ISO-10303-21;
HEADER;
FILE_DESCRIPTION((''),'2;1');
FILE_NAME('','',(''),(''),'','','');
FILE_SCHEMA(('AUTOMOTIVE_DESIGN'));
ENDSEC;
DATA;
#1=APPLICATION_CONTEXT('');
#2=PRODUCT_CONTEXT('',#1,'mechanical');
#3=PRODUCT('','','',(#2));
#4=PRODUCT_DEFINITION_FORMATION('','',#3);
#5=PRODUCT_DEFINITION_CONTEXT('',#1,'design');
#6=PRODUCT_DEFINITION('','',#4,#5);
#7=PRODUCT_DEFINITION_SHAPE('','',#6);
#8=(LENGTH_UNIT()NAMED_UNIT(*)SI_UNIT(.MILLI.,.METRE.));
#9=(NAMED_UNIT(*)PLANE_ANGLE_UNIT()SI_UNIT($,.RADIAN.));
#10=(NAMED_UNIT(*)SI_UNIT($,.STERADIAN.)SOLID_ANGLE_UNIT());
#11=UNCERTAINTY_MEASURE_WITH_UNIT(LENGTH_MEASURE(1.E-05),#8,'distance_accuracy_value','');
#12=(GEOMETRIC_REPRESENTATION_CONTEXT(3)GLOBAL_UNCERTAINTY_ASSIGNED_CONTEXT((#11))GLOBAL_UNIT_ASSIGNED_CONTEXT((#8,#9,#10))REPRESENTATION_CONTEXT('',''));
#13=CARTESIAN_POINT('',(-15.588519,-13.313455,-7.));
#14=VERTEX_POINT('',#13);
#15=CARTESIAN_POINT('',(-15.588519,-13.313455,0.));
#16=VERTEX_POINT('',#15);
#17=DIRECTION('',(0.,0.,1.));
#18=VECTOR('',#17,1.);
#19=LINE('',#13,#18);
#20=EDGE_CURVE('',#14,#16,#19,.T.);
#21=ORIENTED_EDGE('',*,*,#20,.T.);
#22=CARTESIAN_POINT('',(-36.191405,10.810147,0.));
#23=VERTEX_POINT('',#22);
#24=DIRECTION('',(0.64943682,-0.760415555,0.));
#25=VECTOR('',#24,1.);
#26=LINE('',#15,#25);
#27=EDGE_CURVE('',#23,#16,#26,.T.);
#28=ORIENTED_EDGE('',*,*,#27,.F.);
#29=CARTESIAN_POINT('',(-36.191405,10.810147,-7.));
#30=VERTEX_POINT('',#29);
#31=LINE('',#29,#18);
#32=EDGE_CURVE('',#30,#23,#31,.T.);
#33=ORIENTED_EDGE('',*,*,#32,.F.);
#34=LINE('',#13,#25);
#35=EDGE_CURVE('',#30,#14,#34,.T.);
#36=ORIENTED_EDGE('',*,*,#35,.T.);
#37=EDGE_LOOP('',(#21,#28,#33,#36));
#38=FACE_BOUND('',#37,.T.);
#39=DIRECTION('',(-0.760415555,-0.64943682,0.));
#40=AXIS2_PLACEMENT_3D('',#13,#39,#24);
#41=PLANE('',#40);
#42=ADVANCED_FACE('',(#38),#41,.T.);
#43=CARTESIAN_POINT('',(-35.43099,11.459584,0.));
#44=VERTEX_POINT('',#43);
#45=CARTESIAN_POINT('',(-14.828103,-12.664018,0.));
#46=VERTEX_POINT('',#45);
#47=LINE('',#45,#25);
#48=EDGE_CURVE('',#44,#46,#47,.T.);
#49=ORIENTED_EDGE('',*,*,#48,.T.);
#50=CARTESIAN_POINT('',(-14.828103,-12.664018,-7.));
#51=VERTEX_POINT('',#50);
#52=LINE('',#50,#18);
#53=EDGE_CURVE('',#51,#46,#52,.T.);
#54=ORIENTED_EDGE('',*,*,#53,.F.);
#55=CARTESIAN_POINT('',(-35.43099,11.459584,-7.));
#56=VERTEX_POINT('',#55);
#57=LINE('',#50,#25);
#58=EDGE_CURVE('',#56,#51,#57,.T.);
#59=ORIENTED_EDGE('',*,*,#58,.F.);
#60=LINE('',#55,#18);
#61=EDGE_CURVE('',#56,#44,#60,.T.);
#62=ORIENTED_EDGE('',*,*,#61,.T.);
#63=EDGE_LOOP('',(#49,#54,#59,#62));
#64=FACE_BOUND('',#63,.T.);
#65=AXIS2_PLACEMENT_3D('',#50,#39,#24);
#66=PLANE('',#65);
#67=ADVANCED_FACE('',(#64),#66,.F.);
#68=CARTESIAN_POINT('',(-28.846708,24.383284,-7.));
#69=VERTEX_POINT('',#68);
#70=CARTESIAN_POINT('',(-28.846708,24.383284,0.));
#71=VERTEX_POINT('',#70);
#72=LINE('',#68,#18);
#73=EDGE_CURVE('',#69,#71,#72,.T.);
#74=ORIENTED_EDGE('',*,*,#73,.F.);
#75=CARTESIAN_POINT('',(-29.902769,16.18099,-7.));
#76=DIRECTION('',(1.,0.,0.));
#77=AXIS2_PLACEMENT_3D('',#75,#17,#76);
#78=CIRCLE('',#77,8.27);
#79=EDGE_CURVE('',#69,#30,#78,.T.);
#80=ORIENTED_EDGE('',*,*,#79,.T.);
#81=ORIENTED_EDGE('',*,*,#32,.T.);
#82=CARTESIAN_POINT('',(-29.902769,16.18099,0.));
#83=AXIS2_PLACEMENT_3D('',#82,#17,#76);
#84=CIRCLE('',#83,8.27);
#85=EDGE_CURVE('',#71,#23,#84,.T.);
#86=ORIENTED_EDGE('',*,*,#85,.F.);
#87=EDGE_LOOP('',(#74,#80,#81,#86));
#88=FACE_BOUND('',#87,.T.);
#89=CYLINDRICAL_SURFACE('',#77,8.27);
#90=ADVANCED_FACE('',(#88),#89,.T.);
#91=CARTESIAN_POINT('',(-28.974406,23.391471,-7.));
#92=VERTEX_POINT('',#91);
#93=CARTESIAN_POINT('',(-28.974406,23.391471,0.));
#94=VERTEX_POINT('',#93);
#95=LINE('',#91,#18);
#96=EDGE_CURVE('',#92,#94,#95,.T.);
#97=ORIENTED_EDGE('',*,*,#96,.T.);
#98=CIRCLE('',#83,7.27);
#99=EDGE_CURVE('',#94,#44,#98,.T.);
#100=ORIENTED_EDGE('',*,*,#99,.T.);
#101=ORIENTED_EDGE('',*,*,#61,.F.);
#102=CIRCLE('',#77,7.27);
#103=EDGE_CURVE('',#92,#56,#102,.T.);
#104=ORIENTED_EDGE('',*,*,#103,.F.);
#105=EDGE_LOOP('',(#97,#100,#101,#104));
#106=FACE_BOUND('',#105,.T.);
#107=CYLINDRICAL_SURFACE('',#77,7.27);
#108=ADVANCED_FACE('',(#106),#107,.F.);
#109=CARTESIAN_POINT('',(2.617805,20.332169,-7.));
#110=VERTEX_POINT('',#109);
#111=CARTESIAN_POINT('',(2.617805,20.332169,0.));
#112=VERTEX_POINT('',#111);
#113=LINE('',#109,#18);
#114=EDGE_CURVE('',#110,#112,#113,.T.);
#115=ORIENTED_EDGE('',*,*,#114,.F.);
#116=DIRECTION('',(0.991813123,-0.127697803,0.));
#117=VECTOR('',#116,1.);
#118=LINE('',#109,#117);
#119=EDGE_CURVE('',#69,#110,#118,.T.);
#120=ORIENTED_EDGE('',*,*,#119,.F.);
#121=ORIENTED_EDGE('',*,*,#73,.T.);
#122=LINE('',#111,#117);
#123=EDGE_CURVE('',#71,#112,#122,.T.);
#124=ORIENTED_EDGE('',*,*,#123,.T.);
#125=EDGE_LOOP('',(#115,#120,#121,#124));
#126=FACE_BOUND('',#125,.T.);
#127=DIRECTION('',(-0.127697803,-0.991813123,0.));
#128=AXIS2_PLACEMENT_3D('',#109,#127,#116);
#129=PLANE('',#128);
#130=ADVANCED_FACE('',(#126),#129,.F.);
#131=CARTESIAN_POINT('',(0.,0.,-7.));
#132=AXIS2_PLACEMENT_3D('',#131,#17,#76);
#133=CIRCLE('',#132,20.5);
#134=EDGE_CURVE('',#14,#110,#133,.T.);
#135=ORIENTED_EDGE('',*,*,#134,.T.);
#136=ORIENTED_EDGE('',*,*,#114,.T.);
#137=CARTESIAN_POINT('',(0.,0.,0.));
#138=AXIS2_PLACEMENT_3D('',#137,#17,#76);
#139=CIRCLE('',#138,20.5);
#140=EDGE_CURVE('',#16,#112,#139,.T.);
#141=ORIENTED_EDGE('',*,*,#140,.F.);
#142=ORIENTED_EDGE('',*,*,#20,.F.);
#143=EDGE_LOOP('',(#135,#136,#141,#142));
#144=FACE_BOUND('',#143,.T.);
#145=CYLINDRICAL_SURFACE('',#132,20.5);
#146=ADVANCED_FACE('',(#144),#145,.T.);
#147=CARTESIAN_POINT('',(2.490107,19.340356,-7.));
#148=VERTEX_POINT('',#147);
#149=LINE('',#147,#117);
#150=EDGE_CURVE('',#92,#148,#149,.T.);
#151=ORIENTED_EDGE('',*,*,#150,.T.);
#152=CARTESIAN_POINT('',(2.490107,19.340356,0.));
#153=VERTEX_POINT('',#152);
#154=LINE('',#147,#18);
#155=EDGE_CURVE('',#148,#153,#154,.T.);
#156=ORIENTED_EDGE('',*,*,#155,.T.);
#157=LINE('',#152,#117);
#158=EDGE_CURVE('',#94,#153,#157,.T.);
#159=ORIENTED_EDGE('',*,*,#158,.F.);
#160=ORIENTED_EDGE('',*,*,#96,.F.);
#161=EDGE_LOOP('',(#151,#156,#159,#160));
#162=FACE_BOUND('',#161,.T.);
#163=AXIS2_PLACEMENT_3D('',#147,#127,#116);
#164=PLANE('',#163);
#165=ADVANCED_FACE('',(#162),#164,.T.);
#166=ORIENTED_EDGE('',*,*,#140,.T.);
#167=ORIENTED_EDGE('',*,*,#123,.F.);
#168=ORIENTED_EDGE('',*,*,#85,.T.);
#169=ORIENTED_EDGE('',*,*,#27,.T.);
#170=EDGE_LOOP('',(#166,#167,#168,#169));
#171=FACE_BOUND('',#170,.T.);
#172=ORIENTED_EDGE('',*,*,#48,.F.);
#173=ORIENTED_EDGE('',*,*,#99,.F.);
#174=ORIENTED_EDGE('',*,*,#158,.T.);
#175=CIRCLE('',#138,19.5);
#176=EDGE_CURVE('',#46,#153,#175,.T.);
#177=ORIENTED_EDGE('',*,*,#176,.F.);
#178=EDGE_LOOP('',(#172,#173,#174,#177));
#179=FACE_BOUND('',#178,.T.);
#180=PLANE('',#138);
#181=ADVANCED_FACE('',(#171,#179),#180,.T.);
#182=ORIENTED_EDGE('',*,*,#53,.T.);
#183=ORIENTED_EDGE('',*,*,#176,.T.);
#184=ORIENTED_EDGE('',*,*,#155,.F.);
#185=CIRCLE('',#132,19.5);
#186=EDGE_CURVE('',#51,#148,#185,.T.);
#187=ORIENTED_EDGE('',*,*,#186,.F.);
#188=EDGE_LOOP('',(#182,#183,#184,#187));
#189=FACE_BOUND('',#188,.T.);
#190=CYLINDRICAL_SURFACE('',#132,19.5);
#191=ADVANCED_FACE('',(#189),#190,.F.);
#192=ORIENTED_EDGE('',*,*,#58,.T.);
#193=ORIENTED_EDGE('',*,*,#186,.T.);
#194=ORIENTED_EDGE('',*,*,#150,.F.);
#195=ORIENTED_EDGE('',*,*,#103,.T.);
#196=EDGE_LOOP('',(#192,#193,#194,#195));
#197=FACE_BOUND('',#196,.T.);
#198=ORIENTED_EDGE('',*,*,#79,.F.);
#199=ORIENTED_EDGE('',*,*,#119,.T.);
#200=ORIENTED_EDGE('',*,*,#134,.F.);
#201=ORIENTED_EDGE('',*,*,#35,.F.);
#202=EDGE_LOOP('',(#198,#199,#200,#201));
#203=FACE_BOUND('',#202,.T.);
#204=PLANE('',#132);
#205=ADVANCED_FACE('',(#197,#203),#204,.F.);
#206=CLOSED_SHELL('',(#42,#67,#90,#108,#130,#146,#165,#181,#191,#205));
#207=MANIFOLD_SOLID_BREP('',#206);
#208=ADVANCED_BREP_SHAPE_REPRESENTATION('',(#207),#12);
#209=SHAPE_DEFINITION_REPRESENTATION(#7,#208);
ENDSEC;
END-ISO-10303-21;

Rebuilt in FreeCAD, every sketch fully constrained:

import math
import FreeCAD as App
import Part
import Sketcher

doc = App.newDocument("Part")
body = doc.addObject("PartDesign::Body", "Body")

# Sketch on XY plane
sketch1 = body.newObject("Sketcher::SketchObject", "Sketch")
sketch1.AttachmentSupport = (doc.getObject("XY_Plane"), [""])
sketch1.MapMode = "FlatFace"
sketch1.addGeometry(Part.LineSegment(App.Vector(3, 20, 0), App.Vector(-29, 24, 0)), False)
sketch1.addGeometry(Part.ArcOfCircle(Part.Circle(App.Vector(-30, 16, 0), App.Vector(0, 0, 1), 8), math.radians(83), math.radians(220)), False)
sketch1.addGeometry(Part.LineSegment(App.Vector(-36, 11, 0), App.Vector(-16, -13, 0)), False)
sketch1.addGeometry(Part.ArcOfCircle(Part.Circle(App.Vector(0, 0, 0), App.Vector(0, 0, 1), 20), math.radians(-140), math.radians(-22)), False)
sketch1.addGeometry(Part.ArcOfCircle(Part.Circle(App.Vector(0, 0, 0), App.Vector(0, 0, 1), 21), math.radians(-22), math.radians(83)), False)
sketch1.addGeometry(Part.LineSegment(App.Vector(-29, 23, 0), App.Vector(2, 19, 0)), False)
sketch1.addGeometry(Part.ArcOfCircle(Part.Circle(App.Vector(0, 0, 0), App.Vector(0, 0, 1), 20), math.radians(-22), math.radians(83)), False)
sketch1.addGeometry(Part.ArcOfCircle(Part.Circle(App.Vector(0, 0, 0), App.Vector(0, 0, 1), 19), math.radians(-140), math.radians(-22)), False)
sketch1.addGeometry(Part.LineSegment(App.Vector(-15, -13, 0), App.Vector(-35, 11, 0)), False)
sketch1.addGeometry(Part.ArcOfCircle(Part.Circle(App.Vector(-30, 16, 0), App.Vector(0, 0, 1), 7), math.radians(83), math.radians(220)), False)
sketch1.addConstraint(Sketcher.Constraint("Tangent", 0, 2, 1, 1))
sketch1.addConstraint(Sketcher.Constraint("Tangent", 1, 2, 2, 1))
sketch1.addConstraint(Sketcher.Constraint("Tangent", 2, 2, 3, 1))
sketch1.addConstraint(Sketcher.Constraint("Tangent", 3, 2, 4, 1))
sketch1.addConstraint(Sketcher.Constraint("Tangent", 4, 2, 0, 1))
sketch1.addConstraint(Sketcher.Constraint("Tangent", 5, 2, 6, 2))
sketch1.addConstraint(Sketcher.Constraint("Tangent", 6, 1, 7, 2))
sketch1.addConstraint(Sketcher.Constraint("Tangent", 7, 1, 8, 1))
sketch1.addConstraint(Sketcher.Constraint("Tangent", 8, 2, 9, 2))
sketch1.addConstraint(Sketcher.Constraint("Tangent", 9, 1, 5, 1))
sketch1.addConstraint(Sketcher.Constraint("Coincident", 3, 3, -1, 1))
sketch1.addConstraint(Sketcher.Constraint("Coincident", 6, 3, -1, 1))
sketch1.addConstraint(Sketcher.Constraint("Coincident", 9, 3, 1, 3))
sketch1.addConstraint(Sketcher.Constraint("Equal", 3, 4))
sketch1.addConstraint(Sketcher.Constraint("Equal", 6, 7))
sketch1.addConstraint(Sketcher.Constraint("Parallel", 0, 5))
sketch1.addConstraint(Sketcher.Constraint("Radius", 3, 20.5))
sketch1.addConstraint(Sketcher.Constraint("Radius", 6, 19.5))
sketch1.addConstraint(Sketcher.Constraint("Radius", 1, 8.27))
sketch1.addConstraint(Sketcher.Constraint("DistanceX", 1, 2, 9, 1, 7.217))
sketch1.addConstraint(Sketcher.Constraint("DistanceY", 2, 2, 1, 2, 24.123602))
sketch1.addConstraint(Sketcher.Constraint("DistanceX", -1, 1, 3, 2, 18.93953))
sketch1.addConstraint(Sketcher.Constraint("DistanceX", -1, 1, 6, 1, 18.015651))
pad1 = body.newObject("PartDesign::Pad", "Pad")
pad1.Profile = sketch1
pad1.Length = 7
pad1.Reversed = True

doc.recompute()
